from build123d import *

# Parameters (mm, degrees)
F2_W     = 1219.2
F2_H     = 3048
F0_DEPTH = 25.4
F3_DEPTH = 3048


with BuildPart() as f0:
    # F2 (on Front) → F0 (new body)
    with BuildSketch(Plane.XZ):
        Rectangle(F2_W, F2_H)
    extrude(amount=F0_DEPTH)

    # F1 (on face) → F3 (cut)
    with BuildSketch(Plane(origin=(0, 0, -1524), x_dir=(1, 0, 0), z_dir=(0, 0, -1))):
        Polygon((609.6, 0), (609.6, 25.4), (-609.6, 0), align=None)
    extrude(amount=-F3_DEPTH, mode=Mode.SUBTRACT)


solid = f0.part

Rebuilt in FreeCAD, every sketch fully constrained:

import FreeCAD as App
import Part
import Sketcher
from FreeCAD import Vector
Q = App.Units.Quantity


def add_polygon(sketch, points):
    """Adds a closed chain of lines whose ends are joined by coincident constraints."""
    first, n = sketch.GeometryCount, len(points)
    for a, b in zip(points, points[1:] + points[:1]):
        sketch.addGeometry(Part.LineSegment(App.Vector(*a, 0), App.Vector(*b, 0)), False)
    for i in range(n):
        sketch.addConstraint(Sketcher.Constraint("Coincident", first + i, 2, first + (i + 1) % n, 1))

doc = App.newDocument("Part")
body = doc.addObject("PartDesign::Body", "Body")

sketch1 = doc.addObject("Sketcher::SketchObject", "Sketch")
body.addObject(sketch1)
sketch1.AttachmentSupport = (doc.XZ_Plane, [""])
sketch1.MapMode = "FlatFace"
add_polygon(sketch1, [(-610, 1524), (-610, -1524), (610, -1524), (610, 1524)])
sketch1.addConstraint([
    Sketcher.Constraint("Vertical", 0),
    Sketcher.Constraint("Horizontal", 1),
    Sketcher.Constraint("Vertical", 2),
    Sketcher.Constraint("Horizontal", 3),
    Sketcher.Constraint("Symmetric", 0, 2, 2, 2, -1, 1),
    Sketcher.Constraint("DistanceX", 1, 1, 1, 2, Q("48 in")),
    Sketcher.Constraint("DistanceY", 0, 2, 0, 1, Q("120 in")),
])
pad1 = doc.addObject("PartDesign::Pad", "Pad")
body.addObject(pad1)
pad1.Profile = sketch1
pad1.Length = Q("1 in")

sketch2 = doc.addObject("Sketcher::SketchObject", "Sketch001")
body.addObject(sketch2)
sketch2.AttachmentSupport = (doc.XY_Plane, [""])
sketch2.MapMode = "FlatFace"
sketch2.AttachmentOffset = App.Placement(Vector(0, 0, -60 * 25.4), App.Rotation())
add_polygon(sketch2, [(610, 0), (610, -25), (-610, 0)])
sketch2.addConstraint([
    Sketcher.Constraint("Vertical", 0),
    Sketcher.Constraint("Horizontal", 2),
    Sketcher.Constraint("Symmetric", 1, 2, 2, 2, -1, 1),
    Sketcher.Constraint("DistanceX", 2, 1, 2, 2, Q("48 in")),
    Sketcher.Constraint("DistanceY", 0, 2, 0, 1, Q("1 in")),
])
pocket1 = doc.addObject("PartDesign::Pocket", "Pocket")
body.addObject(pocket1)
pocket1.Profile = sketch2
pocket1.Length = Q("120 in")
pocket1.Reversed = True

doc.recompute()
